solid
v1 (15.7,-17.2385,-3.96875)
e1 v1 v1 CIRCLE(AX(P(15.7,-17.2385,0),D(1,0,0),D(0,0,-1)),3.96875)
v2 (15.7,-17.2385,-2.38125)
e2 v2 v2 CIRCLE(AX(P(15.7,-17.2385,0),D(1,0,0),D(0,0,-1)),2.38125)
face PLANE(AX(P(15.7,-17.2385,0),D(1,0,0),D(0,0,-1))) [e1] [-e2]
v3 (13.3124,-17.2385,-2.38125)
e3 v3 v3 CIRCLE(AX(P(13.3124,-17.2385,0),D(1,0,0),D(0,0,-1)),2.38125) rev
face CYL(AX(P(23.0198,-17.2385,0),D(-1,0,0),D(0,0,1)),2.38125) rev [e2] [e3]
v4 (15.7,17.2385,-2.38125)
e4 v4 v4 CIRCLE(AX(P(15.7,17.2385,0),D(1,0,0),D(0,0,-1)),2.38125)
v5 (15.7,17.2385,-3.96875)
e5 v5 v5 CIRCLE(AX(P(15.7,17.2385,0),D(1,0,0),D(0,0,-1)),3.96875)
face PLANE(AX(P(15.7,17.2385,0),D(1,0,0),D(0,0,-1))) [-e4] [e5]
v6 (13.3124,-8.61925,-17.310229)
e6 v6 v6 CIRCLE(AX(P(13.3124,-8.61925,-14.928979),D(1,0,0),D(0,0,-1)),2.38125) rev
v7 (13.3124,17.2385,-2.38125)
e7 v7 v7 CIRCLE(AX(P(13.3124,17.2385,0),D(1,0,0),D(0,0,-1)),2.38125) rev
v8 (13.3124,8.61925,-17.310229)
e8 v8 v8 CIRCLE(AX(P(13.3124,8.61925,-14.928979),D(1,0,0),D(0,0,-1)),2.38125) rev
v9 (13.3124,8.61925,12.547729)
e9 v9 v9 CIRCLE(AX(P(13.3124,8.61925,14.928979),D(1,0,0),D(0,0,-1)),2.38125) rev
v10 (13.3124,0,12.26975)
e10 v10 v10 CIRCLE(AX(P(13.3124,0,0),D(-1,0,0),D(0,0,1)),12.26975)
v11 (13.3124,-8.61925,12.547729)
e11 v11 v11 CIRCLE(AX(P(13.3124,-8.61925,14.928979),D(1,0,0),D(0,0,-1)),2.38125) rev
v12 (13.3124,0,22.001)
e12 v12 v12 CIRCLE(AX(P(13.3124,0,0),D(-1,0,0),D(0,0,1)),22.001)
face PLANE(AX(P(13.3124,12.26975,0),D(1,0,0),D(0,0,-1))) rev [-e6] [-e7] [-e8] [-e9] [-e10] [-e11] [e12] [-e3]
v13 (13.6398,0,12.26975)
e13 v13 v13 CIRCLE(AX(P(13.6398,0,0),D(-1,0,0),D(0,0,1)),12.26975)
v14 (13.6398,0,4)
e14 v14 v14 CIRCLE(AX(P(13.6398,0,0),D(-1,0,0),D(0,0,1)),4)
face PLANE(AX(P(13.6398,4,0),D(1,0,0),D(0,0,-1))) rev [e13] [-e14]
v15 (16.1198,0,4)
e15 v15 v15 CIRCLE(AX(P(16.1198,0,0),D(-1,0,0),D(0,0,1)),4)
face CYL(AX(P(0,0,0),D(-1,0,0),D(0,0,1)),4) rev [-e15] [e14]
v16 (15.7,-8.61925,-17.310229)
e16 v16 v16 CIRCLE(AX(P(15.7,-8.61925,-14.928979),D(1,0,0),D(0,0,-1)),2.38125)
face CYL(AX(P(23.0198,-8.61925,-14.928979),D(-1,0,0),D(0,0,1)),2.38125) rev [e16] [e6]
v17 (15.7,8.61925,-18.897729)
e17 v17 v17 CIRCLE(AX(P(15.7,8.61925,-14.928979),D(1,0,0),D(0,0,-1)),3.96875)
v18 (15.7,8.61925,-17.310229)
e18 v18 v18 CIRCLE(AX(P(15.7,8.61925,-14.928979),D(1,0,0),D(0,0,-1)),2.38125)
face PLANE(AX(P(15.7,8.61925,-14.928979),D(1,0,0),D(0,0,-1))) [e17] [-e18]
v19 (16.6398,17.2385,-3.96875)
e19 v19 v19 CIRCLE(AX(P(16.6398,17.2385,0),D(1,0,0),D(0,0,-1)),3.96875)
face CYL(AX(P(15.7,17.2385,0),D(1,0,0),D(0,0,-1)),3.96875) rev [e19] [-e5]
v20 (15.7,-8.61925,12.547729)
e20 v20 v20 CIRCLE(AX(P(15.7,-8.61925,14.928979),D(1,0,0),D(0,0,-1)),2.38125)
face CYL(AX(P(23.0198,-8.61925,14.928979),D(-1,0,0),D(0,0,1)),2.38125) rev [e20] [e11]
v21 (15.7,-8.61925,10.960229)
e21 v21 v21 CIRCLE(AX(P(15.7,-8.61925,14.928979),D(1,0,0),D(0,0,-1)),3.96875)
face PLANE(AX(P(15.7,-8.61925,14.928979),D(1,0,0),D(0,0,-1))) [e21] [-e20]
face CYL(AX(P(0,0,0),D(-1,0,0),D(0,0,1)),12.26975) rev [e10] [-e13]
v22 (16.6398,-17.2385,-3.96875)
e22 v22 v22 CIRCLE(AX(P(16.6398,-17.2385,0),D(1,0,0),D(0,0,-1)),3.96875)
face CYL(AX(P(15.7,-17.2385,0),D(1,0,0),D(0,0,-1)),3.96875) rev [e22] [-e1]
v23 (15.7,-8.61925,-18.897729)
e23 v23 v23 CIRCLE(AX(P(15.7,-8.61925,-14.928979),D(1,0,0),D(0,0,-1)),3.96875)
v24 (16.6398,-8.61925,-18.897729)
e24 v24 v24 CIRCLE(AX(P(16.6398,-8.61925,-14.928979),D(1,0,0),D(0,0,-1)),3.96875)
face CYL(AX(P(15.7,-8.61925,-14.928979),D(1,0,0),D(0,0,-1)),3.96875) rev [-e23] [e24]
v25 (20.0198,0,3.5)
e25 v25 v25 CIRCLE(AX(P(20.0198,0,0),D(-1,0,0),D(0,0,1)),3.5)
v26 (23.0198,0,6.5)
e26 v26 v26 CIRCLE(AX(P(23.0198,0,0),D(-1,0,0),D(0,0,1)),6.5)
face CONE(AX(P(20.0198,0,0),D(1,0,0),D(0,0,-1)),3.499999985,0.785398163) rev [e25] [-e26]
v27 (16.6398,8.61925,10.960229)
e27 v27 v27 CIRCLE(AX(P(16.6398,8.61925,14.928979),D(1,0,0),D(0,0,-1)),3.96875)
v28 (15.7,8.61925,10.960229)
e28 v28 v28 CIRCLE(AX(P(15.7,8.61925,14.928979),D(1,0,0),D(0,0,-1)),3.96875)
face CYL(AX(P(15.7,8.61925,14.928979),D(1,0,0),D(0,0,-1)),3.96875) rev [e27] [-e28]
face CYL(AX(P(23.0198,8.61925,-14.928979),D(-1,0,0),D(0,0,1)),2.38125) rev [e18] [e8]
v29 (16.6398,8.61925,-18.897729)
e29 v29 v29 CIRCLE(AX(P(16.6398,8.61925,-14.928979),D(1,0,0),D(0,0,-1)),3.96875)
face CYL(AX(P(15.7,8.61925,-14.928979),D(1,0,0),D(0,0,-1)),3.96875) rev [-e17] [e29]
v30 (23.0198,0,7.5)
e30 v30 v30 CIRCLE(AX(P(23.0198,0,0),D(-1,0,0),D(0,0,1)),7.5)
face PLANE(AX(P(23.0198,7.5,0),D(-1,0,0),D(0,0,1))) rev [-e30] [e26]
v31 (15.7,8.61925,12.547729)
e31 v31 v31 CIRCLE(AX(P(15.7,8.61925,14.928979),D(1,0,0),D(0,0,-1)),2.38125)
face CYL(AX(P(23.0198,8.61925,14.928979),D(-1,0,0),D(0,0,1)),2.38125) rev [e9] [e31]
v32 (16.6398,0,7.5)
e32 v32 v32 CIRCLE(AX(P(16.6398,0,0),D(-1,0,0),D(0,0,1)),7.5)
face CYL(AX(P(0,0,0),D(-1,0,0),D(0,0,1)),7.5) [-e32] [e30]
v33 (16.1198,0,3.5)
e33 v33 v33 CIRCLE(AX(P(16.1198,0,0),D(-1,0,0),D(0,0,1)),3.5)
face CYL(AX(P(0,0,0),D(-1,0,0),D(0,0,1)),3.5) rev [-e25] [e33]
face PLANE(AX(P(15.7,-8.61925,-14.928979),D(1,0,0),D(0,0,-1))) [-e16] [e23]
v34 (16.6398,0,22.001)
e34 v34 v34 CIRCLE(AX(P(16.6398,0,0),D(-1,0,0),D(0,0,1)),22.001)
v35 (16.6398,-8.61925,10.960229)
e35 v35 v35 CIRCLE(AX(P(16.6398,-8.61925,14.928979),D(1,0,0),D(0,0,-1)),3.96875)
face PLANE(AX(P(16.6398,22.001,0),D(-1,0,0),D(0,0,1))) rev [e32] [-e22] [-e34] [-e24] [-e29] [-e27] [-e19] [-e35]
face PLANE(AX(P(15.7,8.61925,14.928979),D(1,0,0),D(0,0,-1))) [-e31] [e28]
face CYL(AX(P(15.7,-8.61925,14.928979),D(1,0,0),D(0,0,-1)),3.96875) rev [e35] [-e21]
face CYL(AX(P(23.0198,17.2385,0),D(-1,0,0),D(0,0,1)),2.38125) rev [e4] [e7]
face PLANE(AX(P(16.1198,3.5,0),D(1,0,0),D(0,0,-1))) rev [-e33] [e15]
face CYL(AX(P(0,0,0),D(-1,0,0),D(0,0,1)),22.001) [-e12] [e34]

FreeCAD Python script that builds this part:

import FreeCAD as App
import Part
import Sketcher
Q = App.Units.Quantity

doc = App.newDocument("Part")
body = doc.addObject("PartDesign::Body", "Body")

sketch1 = body.newObject("Sketcher::SketchObject", "Sketch")
sketch1.AttachmentSupport = (doc.getObject("XY_Plane"), [""])
sketch1.MapMode = "FlatFace"
sketch1.addGeometry(Part.LineSegment(App.Vector(16.64, 22, 0), App.Vector(13.31, 22, 0)), False)
sketch1.addGeometry(Part.LineSegment(App.Vector(13.31, 22, 0), App.Vector(13.31, 12.27, 0)), False)
sketch1.addGeometry(Part.LineSegment(App.Vector(13.31, 12.27, 0), App.Vector(13.64, 12.27, 0)), False)
sketch1.addGeometry(Part.LineSegment(App.Vector(13.64, 12.27, 0), App.Vector(13.64, 4, 0)), False)
sketch1.addGeometry(Part.LineSegment(App.Vector(13.64, 4, 0), App.Vector(16.12, 4, 0)), False)
sketch1.addGeometry(Part.LineSegment(App.Vector(16.12, 4, 0), App.Vector(16.12, 3.5, 0)), False)
sketch1.addGeometry(Part.LineSegment(App.Vector(16.12, 3.5, 0), App.Vector(20.02, 3.5, 0)), False)
sketch1.addGeometry(Part.LineSegment(App.Vector(20.02, 3.5, 0), App.Vector(23.02, 6.5, 0)), False)
sketch1.addGeometry(Part.LineSegment(App.Vector(23.02, 6.5, 0), App.Vector(23.02, 7.5, 0)), False)
sketch1.addGeometry(Part.LineSegment(App.Vector(23.02, 7.5, 0), App.Vector(16.64, 7.5, 0)), False)
sketch1.addGeometry(Part.LineSegment(App.Vector(16.64, 7.5, 0), App.Vector(16.64, 22, 0)), False)
sketch1.addConstraint(Sketcher.Constraint("Coincident", 0, 2, 1, 1))
sketch1.addConstraint(Sketcher.Constraint("Coincident", 1, 2, 2, 1))
sketch1.addConstraint(Sketcher.Constraint("Coincident", 2, 2, 3, 1))
sketch1.addConstraint(Sketcher.Constraint("Coincident", 3, 2, 4, 1))
sketch1.addConstraint(Sketcher.Constraint("Coincident", 4, 2, 5, 1))
sketch1.addConstraint(Sketcher.Constraint("Coincident", 5, 2, 6, 1))
sketch1.addConstraint(Sketcher.Constraint("Coincident", 6, 2, 7, 1))
sketch1.addConstraint(Sketcher.Constraint("Coincident", 7, 2, 8, 1))
sketch1.addConstraint(Sketcher.Constraint("Coincident", 8, 2, 9, 1))
sketch1.addConstraint(Sketcher.Constraint("Coincident", 9, 2, 10, 1))
sketch1.addConstraint(Sketcher.Constraint("Coincident", 10, 2, 0, 1))
sketch1.addConstraint(Sketcher.Constraint("Horizontal", 0))
sketch1.addConstraint(Sketcher.Constraint("Vertical", 1))
sketch1.addConstraint(Sketcher.Constraint("Horizontal", 2))
sketch1.addConstraint(Sketcher.Constraint("Vertical", 3))
sketch1.addConstraint(Sketcher.Constraint("Horizontal", 4))
sketch1.addConstraint(Sketcher.Constraint("Vertical", 5))
sketch1.addConstraint(Sketcher.Constraint("Horizontal", 6))
sketch1.addConstraint(Sketcher.Constraint("Vertical", 8))
sketch1.addConstraint(Sketcher.Constraint("Horizontal", 9))
sketch1.addConstraint(Sketcher.Constraint("Vertical", 10))
sketch1.addConstraint(Sketcher.Constraint("Angle", 7, Q("45 deg")))
sketch1.addConstraint(Sketcher.Constraint("DistanceX", 0, 2, 0, 1, Q("0.131 in")))
sketch1.addConstraint(Sketcher.Constraint("DistanceX", -1, 1, 2, 2, Q("0.537 in")))
sketch1.addConstraint(Sketcher.Constraint("DistanceX", 2, 1, 2, 2, 0.3274))
sketch1.addConstraint(Sketcher.Constraint("DistanceX", 4, 1, 4, 2, 2.48))
sketch1.addConstraint(Sketcher.Constraint("DistanceX", 6, 1, 6, 2, 3.9))
sketch1.addConstraint(Sketcher.Constraint("DistanceX", 9, 2, 9, 1, 6.38))
sketch1.addConstraint(Sketcher.Constraint("DistanceY", 5, 2, 5, 1, 0.5))
sketch1.addConstraint(Sketcher.Constraint("DistanceY", 8, 1, 8, 2, 1.0))
sketch1.addConstraint(Sketcher.Constraint("DistanceY", 10, 1, 10, 2, 14.501))
sketch1.addConstraint(Sketcher.Constraint("DistanceY", 1, 2, 1, 1, 9.73125))
sketch1.addConstraint(Sketcher.Constraint("DistanceY", -1, 1, 0, 2, 22.001))
revolution = body.newObject("PartDesign::Revolution", "Revolution")
revolution.Profile = sketch1
revolution.ReferenceAxis = (sketch1, ["H_Axis"])
revolution.Angle = 360

sketch2 = body.newObject("Sketcher::SketchObject", "Sketch001")
sketch2.AttachmentSupport = (doc.getObject("YZ_Plane"), [""])
sketch2.MapMode = "FlatFace"
sketch2.addGeometry(Part.Circle(App.Vector(8.6, 14.9, 0), App.Vector(0, 0, 1), 2.4), False)
sketch2.addGeometry(Part.Circle(App.Vector(17.2, 0, 0), App.Vector(0, 0, 1), 2.4), False)
sketch2.addGeometry(Part.Circle(App.Vector(8.6, -14.9, 0), App.Vector(0, 0, 1), 2.4), False)
sketch2.addGeometry(Part.Circle(App.Vector(-8.6, -14.9, 0), App.Vector(0, 0, 1), 2.4), False)
sketch2.addGeometry(Part.Circle(App.Vector(-17.2, 0, 0), App.Vector(0, 0, 1), 2.4), False)
sketch2.addGeometry(Part.Circle(App.Vector(-8.6, 14.9, 0), App.Vector(0, 0, 1), 2.4), False)
sketch2.addConstraint(Sketcher.Constraint("Equal", 0, 1))
sketch2.addConstraint(Sketcher.Constraint("Equal", 1, 2))
sketch2.addConstraint(Sketcher.Constraint("Equal", 2, 3))
sketch2.addConstraint(Sketcher.Constraint("Equal", 3, 4))
sketch2.addConstraint(Sketcher.Constraint("Equal", 4, 5))
sketch2.addConstraint(Sketcher.Constraint("Symmetric", 0, 3, 3, 3, -1, 1))
sketch2.addConstraint(Sketcher.Constraint("Symmetric", 1, 3, 4, 3, -1, 1))
sketch2.addConstraint(Sketcher.Constraint("Symmetric", 2, 3, 5, 3, -1, 1))
sketch2.addConstraint(Sketcher.Constraint("Symmetric", 2, 3, 3, 3, -2))
sketch2.addConstraint(Sketcher.Constraint("PointOnObject", 1, 3, -1))
sketch2.addConstraint(Sketcher.Constraint("Diameter", 0, Q("0.1875 in")))
sketch2.addConstraint(Sketcher.Constraint("DistanceX", -1, 1, 1, 3, 17.2385))
sketch2.addConstraint(Sketcher.Constraint("DistanceX", 3, 3, 2, 3, 17.2385))
sketch2.addConstraint(Sketcher.Constraint("DistanceY", -1, 1, 0, 3, 14.928979))
pocket1 = body.newObject("PartDesign::Pocket", "Pocket")
pocket1.Profile = sketch2
pocket1.Type = "ThroughAll"
pocket1.Reversed = True

sketch3 = body.newObject("Sketcher::SketchObject", "Sketch002")
sketch3.AttachmentSupport = (doc.getObject("YZ_Plane"), [""])
sketch3.MapMode = "FlatFace"
sketch3.AttachmentOffset = App.Placement(App.Vector(0, 0, 16.6398), App.Rotation())
sketch3.addGeometry(Part.Circle(App.Vector(17.2, 0, 0), App.Vector(0, 0, 1), 4), False)
sketch3.addGeometry(Part.Circle(App.Vector(8.6, -14.9, 0), App.Vector(0, 0, 1), 4), False)
sketch3.addGeometry(Part.Circle(App.Vector(-8.6, -14.9, 0), App.Vector(0, 0, 1), 4), False)
sketch3.addGeometry(Part.Circle(App.Vector(-17.2, 0, 0), App.Vector(0, 0, 1), 4), False)
sketch3.addGeometry(Part.Circle(App.Vector(-8.6, 14.9, 0), App.Vector(0, 0, 1), 4), False)
sketch3.addGeometry(Part.Circle(App.Vector(8.6, 14.9, 0), App.Vector(0, 0, 1), 4), False)
sketch3.addConstraint(Sketcher.Constraint("Equal", 0, 1))
sketch3.addConstraint(Sketcher.Constraint("Equal", 1, 2))
sketch3.addConstraint(Sketcher.Constraint("Equal", 2, 3))
sketch3.addConstraint(Sketcher.Constraint("Equal", 3, 4))
sketch3.addConstraint(Sketcher.Constraint("Equal", 4, 5))
sketch3.addConstraint(Sketcher.Constraint("Symmetric", 0, 3, 3, 3, -1, 1))
sketch3.addConstraint(Sketcher.Constraint("Symmetric", 1, 3, 4, 3, -1, 1))
sketch3.addConstraint(Sketcher.Constraint("Symmetric", 2, 3, 5, 3, -1, 1))
sketch3.addConstraint(Sketcher.Constraint("Symmetric", 1, 3, 2, 3, -2))
sketch3.addConstraint(Sketcher.Constraint("PointOnObject", 0, 3, -1))
sketch3.addConstraint(Sketcher.Constraint("Diameter", 0, Q("0.3125 in")))
sketch3.addConstraint(Sketcher.Constraint("DistanceX", -1, 1, 0, 3, 17.2385))
sketch3.addConstraint(Sketcher.Constraint("DistanceX", 2, 3, 1, 3, 17.2385))
sketch3.addConstraint(Sketcher.Constraint("DistanceY", 1, 3, -1, 1, 14.928979))
pocket2 = body.newObject("PartDesign::Pocket", "Pocket001")
pocket2.Profile = sketch3
pocket2.Length = Q("0.037 in")

doc.recompute()
